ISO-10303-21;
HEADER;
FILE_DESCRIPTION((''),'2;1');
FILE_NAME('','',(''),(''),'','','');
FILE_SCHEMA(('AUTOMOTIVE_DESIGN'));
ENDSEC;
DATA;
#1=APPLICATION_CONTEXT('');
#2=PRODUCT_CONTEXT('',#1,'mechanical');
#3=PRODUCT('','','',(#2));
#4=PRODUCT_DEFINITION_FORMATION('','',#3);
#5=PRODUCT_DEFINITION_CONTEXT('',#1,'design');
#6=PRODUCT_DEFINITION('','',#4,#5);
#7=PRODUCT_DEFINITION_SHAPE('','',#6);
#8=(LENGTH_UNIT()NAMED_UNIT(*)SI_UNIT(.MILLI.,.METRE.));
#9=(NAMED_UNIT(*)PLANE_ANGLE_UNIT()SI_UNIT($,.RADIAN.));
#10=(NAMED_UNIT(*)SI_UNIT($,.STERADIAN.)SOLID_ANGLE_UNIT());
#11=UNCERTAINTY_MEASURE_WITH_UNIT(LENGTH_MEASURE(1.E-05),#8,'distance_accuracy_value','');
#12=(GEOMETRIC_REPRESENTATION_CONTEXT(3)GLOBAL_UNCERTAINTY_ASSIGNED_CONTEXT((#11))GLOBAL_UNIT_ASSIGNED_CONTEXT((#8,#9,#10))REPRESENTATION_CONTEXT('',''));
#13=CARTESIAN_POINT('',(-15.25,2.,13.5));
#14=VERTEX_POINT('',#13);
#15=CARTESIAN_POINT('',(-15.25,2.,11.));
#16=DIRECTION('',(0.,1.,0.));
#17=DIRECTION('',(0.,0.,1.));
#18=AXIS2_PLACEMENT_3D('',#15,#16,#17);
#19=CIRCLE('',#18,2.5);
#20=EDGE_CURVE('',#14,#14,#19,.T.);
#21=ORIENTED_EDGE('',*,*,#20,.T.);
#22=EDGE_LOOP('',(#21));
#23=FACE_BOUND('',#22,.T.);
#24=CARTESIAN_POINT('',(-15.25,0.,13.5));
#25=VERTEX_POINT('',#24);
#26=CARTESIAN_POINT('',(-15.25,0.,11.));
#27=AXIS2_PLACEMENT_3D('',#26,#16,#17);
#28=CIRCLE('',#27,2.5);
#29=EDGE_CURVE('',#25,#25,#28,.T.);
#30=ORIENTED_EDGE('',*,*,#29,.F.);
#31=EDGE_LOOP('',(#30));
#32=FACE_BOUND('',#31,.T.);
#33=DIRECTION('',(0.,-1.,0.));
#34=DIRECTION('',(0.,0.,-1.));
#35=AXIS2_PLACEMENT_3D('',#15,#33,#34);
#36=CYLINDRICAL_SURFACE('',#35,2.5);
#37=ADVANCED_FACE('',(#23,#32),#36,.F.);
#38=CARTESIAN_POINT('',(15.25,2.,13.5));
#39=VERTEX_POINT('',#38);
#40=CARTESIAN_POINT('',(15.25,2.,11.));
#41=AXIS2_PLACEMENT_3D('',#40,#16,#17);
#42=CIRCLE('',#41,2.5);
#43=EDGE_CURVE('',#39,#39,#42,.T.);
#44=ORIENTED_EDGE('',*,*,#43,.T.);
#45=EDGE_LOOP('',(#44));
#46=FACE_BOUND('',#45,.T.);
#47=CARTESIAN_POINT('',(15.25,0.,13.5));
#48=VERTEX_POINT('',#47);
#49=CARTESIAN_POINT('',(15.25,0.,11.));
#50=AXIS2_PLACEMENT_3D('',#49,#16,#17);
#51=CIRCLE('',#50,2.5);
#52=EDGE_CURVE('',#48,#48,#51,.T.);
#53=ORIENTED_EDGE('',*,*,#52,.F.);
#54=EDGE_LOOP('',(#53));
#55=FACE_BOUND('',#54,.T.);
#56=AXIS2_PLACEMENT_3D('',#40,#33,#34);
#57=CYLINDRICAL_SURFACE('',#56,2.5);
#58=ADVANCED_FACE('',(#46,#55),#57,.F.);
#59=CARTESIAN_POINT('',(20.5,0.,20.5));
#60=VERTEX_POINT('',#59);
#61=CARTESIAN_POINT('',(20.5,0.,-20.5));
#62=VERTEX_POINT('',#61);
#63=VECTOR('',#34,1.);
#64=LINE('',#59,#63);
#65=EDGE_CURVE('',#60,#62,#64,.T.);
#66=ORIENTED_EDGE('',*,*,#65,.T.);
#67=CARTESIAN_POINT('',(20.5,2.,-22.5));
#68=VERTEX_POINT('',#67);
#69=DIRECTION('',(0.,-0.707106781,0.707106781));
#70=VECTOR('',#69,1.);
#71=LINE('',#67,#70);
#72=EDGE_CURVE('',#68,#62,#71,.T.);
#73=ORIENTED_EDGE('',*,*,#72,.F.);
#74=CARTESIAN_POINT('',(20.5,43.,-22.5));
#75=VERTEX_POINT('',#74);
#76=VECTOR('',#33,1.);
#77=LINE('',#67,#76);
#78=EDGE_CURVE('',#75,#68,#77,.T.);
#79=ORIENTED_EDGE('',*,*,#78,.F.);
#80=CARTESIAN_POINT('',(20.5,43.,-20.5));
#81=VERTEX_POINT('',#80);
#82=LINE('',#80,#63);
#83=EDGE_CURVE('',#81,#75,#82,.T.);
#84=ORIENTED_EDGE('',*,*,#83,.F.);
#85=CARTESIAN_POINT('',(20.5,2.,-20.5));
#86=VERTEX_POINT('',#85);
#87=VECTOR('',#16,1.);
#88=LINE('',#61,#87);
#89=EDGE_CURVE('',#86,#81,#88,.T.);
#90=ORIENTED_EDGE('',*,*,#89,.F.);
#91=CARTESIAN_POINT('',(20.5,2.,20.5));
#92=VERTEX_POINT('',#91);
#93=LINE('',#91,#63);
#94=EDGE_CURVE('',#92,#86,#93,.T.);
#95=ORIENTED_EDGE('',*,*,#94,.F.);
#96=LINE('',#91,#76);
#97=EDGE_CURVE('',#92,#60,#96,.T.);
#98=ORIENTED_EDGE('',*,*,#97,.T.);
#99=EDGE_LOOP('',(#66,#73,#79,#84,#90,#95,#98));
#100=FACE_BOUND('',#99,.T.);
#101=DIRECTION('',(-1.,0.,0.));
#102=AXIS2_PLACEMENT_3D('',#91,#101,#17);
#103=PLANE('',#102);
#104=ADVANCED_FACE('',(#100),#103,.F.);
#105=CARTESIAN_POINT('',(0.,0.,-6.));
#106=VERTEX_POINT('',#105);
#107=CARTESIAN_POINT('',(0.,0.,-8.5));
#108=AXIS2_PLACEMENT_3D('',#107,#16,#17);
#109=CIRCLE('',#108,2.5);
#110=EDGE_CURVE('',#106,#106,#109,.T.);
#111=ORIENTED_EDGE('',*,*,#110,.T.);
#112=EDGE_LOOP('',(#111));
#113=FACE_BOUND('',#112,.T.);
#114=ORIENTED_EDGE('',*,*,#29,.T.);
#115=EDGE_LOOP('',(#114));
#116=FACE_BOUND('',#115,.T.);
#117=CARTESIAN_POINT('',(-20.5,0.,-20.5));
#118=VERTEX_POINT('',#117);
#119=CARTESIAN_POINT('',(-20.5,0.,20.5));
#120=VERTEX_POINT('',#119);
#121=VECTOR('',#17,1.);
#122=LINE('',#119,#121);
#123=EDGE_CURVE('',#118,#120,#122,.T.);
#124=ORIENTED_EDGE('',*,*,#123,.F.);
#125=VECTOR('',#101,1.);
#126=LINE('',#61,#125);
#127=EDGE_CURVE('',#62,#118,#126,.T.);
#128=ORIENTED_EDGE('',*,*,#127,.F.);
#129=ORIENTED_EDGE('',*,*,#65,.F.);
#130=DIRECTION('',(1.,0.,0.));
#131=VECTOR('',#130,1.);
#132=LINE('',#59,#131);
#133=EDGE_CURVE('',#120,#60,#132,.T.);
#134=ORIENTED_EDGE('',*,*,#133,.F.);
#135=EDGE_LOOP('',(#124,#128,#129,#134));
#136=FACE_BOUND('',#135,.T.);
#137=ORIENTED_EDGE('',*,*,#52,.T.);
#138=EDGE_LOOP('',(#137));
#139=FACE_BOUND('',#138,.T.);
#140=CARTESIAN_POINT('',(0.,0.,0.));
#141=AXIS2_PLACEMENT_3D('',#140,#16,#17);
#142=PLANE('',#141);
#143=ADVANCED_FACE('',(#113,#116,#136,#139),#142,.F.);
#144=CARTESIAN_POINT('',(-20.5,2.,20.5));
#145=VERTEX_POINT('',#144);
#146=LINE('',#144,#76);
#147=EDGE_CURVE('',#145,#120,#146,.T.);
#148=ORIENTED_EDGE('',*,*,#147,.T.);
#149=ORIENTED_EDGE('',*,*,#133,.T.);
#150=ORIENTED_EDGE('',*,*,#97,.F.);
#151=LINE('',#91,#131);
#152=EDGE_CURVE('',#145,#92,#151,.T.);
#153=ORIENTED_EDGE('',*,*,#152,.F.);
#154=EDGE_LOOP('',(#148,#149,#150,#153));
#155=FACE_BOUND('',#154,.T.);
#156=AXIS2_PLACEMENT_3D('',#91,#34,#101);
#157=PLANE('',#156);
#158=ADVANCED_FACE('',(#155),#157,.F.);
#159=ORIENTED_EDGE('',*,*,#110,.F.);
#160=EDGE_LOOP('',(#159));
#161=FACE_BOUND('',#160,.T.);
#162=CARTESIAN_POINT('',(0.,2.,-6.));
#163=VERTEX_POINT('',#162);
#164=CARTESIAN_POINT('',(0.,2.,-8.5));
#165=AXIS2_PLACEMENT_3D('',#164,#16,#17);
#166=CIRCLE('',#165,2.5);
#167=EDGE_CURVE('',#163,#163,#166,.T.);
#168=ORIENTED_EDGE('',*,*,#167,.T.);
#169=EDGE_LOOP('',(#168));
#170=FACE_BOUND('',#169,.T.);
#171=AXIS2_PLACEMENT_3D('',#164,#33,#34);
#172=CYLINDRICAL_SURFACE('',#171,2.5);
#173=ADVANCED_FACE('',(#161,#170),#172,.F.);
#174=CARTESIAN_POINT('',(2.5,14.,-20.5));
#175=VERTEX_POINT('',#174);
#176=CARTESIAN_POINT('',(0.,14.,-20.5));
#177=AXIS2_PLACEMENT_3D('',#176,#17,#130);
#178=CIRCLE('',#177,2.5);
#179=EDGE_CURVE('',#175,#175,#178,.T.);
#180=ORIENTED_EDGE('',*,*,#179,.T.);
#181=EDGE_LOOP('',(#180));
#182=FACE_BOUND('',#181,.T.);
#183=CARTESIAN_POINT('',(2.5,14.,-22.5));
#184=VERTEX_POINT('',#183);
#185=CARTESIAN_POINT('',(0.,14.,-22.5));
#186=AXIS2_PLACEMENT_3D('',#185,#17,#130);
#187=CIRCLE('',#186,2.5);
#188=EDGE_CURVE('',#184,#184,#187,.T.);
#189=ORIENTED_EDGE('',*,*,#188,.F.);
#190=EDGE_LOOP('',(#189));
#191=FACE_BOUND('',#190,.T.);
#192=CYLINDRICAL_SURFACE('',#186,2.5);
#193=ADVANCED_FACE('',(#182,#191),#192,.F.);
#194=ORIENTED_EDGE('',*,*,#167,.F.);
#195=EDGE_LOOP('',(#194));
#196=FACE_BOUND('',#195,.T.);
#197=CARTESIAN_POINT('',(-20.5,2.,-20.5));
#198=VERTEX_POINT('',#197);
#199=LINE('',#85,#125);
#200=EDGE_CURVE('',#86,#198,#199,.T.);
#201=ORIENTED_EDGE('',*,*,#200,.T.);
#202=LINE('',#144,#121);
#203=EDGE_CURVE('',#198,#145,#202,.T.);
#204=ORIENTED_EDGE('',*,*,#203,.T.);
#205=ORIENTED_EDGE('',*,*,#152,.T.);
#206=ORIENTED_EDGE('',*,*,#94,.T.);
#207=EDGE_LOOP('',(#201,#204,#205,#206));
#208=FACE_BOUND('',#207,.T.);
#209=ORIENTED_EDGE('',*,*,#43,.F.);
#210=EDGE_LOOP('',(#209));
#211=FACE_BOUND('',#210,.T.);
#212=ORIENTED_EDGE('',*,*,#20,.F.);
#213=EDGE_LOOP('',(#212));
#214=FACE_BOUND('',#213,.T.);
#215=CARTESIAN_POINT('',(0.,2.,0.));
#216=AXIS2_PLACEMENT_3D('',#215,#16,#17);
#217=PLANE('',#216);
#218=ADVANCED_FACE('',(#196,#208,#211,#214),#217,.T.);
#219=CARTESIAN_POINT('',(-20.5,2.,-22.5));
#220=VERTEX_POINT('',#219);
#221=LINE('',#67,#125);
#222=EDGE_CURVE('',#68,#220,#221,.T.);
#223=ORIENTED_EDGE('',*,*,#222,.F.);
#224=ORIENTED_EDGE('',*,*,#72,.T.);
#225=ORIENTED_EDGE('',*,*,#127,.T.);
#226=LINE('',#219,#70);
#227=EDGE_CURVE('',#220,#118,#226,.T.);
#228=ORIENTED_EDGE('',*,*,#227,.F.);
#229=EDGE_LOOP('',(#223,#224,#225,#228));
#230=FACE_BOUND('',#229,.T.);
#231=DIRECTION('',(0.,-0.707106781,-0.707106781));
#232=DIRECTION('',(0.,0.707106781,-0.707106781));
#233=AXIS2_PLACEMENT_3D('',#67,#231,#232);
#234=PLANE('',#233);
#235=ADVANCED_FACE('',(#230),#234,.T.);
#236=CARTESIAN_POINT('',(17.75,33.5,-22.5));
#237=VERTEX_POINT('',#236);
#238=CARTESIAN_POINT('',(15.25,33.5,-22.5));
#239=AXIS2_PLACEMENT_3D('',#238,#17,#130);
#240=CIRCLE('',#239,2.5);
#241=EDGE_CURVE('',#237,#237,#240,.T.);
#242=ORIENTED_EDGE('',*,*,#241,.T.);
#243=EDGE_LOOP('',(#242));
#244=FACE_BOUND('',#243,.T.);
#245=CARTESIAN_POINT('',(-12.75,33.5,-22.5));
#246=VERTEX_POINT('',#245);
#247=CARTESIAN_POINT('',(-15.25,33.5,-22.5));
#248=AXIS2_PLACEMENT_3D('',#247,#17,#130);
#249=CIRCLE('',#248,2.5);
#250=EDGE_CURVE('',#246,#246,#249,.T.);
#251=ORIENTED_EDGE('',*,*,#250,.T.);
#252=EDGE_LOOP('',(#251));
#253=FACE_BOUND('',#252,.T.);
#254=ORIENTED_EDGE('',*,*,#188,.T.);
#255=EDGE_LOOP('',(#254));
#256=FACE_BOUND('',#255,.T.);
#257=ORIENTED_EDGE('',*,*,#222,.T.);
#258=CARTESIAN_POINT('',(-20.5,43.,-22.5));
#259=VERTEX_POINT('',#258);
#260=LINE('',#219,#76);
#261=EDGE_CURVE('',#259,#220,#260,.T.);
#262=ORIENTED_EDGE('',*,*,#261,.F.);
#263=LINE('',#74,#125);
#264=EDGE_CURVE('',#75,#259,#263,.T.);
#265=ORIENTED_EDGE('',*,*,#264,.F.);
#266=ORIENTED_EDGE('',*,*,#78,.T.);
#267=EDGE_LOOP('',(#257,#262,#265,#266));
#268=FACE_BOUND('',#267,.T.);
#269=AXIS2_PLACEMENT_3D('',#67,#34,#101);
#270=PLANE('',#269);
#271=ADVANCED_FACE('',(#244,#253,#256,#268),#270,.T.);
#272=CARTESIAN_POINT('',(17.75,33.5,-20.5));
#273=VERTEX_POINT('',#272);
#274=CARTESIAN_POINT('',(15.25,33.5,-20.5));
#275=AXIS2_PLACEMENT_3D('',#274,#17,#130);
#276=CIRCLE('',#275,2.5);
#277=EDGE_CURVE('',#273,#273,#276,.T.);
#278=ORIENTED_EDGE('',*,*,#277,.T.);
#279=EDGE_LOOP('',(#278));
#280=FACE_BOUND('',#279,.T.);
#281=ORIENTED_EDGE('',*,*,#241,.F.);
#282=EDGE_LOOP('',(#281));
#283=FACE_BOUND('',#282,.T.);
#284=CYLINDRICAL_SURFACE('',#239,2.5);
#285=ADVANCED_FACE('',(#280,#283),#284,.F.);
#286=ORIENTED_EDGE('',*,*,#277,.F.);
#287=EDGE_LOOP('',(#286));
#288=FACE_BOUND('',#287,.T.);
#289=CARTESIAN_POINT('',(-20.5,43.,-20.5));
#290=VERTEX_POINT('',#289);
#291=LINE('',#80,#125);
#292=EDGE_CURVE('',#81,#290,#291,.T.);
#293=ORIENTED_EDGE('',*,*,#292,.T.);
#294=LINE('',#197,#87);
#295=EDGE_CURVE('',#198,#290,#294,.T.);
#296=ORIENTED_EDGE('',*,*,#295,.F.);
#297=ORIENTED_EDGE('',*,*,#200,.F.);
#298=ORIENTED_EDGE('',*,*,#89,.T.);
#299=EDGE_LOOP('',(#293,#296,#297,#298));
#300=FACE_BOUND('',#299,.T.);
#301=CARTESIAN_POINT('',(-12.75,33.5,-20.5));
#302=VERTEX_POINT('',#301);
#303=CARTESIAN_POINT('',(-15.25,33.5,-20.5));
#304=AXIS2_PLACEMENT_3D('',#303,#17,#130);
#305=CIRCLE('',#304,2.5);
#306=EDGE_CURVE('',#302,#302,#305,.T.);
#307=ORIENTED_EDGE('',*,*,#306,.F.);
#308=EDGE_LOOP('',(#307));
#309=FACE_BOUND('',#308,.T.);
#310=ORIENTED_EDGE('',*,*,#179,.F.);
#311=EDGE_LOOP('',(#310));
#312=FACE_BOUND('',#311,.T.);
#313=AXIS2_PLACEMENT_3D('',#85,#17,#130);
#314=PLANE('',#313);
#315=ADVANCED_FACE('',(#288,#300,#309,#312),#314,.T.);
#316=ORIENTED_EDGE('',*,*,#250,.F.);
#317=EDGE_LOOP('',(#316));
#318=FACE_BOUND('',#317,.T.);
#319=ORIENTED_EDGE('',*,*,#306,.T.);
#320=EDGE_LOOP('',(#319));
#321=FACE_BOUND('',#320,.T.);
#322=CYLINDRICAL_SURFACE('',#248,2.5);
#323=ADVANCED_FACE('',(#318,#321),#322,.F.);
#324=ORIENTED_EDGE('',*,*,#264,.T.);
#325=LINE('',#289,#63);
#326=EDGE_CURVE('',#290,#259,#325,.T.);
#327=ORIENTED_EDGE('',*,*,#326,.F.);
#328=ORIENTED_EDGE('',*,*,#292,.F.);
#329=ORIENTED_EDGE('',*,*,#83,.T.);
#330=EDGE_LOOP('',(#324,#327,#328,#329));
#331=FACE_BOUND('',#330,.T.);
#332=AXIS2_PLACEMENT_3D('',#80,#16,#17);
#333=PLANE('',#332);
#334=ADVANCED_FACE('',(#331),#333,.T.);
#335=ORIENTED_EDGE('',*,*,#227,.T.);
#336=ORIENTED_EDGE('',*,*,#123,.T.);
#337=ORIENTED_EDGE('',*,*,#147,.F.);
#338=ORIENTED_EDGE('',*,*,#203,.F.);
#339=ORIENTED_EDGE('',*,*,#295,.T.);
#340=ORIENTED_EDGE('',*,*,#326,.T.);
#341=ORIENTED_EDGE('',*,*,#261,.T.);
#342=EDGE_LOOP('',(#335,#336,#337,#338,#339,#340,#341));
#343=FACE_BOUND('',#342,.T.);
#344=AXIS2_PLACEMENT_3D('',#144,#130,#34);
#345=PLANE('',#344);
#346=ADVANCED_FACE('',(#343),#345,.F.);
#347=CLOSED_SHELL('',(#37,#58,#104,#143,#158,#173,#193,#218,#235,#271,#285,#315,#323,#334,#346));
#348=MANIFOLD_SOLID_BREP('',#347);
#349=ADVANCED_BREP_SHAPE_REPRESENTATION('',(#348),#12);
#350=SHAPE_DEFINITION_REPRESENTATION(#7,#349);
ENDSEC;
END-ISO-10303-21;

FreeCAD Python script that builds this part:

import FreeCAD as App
import Part
import Sketcher

V = App.Vector

doc = App.newDocument("Part")
body = doc.addObject("PartDesign::Body", "Body")

# Sketch on XZ plane
sketch1 = doc.addObject("Sketcher::SketchObject", "Sketch")
body.addObject(sketch1)
sketch1.AttachmentSupport = (doc.XZ_Plane, [""])
sketch1.MapMode = "FlatFace"
sketch1.addGeometry(Part.LineSegment(V(-20.5, -20.5, 0), V(-20.5, 20.5, 0)), False)
sketch1.addGeometry(Part.LineSegment(V(-20.5, 20.5, 0), V(20.5, 20.5, 0)), False)
sketch1.addGeometry(Part.LineSegment(V(20.5, 20.5, 0), V(20.5, -20.5, 0)), False)
sketch1.addGeometry(Part.LineSegment(V(20.5, -20.5, 0), V(-20.5, -20.5, 0)), False)
sketch1.addGeometry(Part.Circle(V(-15.2, 11, 0), V(0, 0, 1), 2.5), False)
sketch1.addGeometry(Part.Circle(V(15.2, 11, 0), V(0, 0, 1), 2.5), False)
sketch1.addGeometry(Part.Circle(V(0, -8.5, 0), V(0, 0, 1), 2.5), False)
sketch1.addConstraint(Sketcher.Constraint("Coincident", 0, 2, 1, 1))
sketch1.addConstraint(Sketcher.Constraint("Coincident", 1, 2, 2, 1))
sketch1.addConstraint(Sketcher.Constraint("Coincident", 2, 2, 3, 1))
sketch1.addConstraint(Sketcher.Constraint("Coincident", 3, 2, 0, 1))
sketch1.addConstraint(Sketcher.Constraint("Vertical", 0))
sketch1.addConstraint(Sketcher.Constraint("Horizontal", 1))
sketch1.addConstraint(Sketcher.Constraint("Vertical", 2))
sketch1.addConstraint(Sketcher.Constraint("Horizontal", 3))
sketch1.addConstraint(Sketcher.Constraint("Equal", 4, 5))
sketch1.addConstraint(Sketcher.Constraint("Equal", 5, 6))
sketch1.addConstraint(Sketcher.Constraint("Symmetric", 0, 2, 2, 2, -1, 1))
sketch1.addConstraint(Sketcher.Constraint("Symmetric", 4, 3, 5, 3, -2))
sketch1.addConstraint(Sketcher.Constraint("PointOnObject", 6, 3, -2))
sketch1.addConstraint(Sketcher.Constraint("Equal", 3, 0))
sketch1.addConstraint(Sketcher.Constraint("Diameter", 4, 5.0))
sketch1.addConstraint(Sketcher.Constraint("DistanceX", 1, 1, 1, 2, 41.0))
sketch1.addConstraint(Sketcher.Constraint("DistanceY", -1, 1, 4, 3, 11.0))
sketch1.addConstraint(Sketcher.Constraint("DistanceY", 6, 3, 0, 2, 29.0))
sketch1.addConstraint(Sketcher.Constraint("DistanceX", 4, 3, 5, 3, 30.5))
pad1 = doc.addObject("PartDesign::Pad", "Pad")
body.addObject(pad1)
pad1.Profile = sketch1
pad1.Length = 2
pad1.Reversed = True

# Sketch on YZ plane
sketch2 = doc.addObject("Sketcher::SketchObject", "Sketch001")
body.addObject(sketch2)
sketch2.AttachmentSupport = (doc.YZ_Plane, [""])
sketch2.MapMode = "FlatFace"
sketch2.AttachmentOffset = App.Placement(V(0, 0, -20.5), App.Rotation())
sketch2.addGeometry(Part.LineSegment(V(2, -22.5, 0), V(0, -20.5, 0)), False)
sketch2.addGeometry(Part.LineSegment(V(0, -20.5, 0), V(43, -20.5, 0)), False)
sketch2.addGeometry(Part.LineSegment(V(43, -20.5, 0), V(43, -22.5, 0)), False)
sketch2.addGeometry(Part.LineSegment(V(43, -22.5, 0), V(2, -22.5, 0)), False)
sketch2.addConstraint(Sketcher.Constraint("Coincident", 0, 2, 1, 1))
sketch2.addConstraint(Sketcher.Constraint("Coincident", 1, 2, 2, 1))
sketch2.addConstraint(Sketcher.Constraint("Coincident", 2, 2, 3, 1))
sketch2.addConstraint(Sketcher.Constraint("Coincident", 3, 2, 0, 1))
sketch2.addConstraint(Sketcher.Constraint("Horizontal", 1))
sketch2.addConstraint(Sketcher.Constraint("Vertical", 2))
sketch2.addConstraint(Sketcher.Constraint("Horizontal", 3))
sketch2.addConstraint(Sketcher.Constraint("PointOnObject", 0, 2, -2))
sketch2.addConstraint(Sketcher.Constraint("DistanceX", 1, 1, 1, 2, 43.0))
sketch2.addConstraint(Sketcher.Constraint("DistanceX", 3, 2, 3, 1, 41.0))
sketch2.addConstraint(Sketcher.Constraint("DistanceY", 2, 2, 2, 1, 2.0))
sketch2.addConstraint(Sketcher.Constraint("DistanceY", 0, 2, -1, 1, 20.5))
pad2 = doc.addObject("PartDesign::Pad", "Pad001")
body.addObject(pad2)
pad2.Profile = sketch2
pad2.Length = 41

# Sketch on XY plane
sketch3 = doc.addObject("Sketcher::SketchObject", "Sketch002")
body.addObject(sketch3)
sketch3.AttachmentSupport = (doc.XY_Plane, [""])
sketch3.MapMode = "FlatFace"
sketch3.AttachmentOffset = App.Placement(V(0, 0, -20.5), App.Rotation())
sketch3.addGeometry(Part.Circle(V(-15.2, 33.5, 0), V(0, 0, 1), 2.5), False)
sketch3.addGeometry(Part.Circle(V(15.2, 33.5, 0), V(0, 0, 1), 2.5), False)
sketch3.addGeometry(Part.Circle(V(0, 14, 0), V(0, 0, 1), 2.5), False)
sketch3.addConstraint(Sketcher.Constraint("Equal", 0, 1))
sketch3.addConstraint(Sketcher.Constraint("Equal", 1, 2))
sketch3.addConstraint(Sketcher.Constraint("Symmetric", 0, 3, 1, 3, -2))
sketch3.addConstraint(Sketcher.Constraint("PointOnObject", 2, 3, -2))
sketch3.addConstraint(Sketcher.Constraint("Diameter", 0, 5.0))
sketch3.addConstraint(Sketcher.Constraint("DistanceY", -1, 1, 2, 3, 14.0))
sketch3.addConstraint(Sketcher.Constraint("DistanceY", -1, 1, 0, 3, 33.5))
sketch3.addConstraint(Sketcher.Constraint("DistanceX", 0, 3, 1, 3, 30.5))
pocket1 = doc.addObject("PartDesign::Pocket", "Pocket")
body.addObject(pocket1)
pocket1.Profile = sketch3
pocket1.Type = "ThroughAll"

doc.recompute()
